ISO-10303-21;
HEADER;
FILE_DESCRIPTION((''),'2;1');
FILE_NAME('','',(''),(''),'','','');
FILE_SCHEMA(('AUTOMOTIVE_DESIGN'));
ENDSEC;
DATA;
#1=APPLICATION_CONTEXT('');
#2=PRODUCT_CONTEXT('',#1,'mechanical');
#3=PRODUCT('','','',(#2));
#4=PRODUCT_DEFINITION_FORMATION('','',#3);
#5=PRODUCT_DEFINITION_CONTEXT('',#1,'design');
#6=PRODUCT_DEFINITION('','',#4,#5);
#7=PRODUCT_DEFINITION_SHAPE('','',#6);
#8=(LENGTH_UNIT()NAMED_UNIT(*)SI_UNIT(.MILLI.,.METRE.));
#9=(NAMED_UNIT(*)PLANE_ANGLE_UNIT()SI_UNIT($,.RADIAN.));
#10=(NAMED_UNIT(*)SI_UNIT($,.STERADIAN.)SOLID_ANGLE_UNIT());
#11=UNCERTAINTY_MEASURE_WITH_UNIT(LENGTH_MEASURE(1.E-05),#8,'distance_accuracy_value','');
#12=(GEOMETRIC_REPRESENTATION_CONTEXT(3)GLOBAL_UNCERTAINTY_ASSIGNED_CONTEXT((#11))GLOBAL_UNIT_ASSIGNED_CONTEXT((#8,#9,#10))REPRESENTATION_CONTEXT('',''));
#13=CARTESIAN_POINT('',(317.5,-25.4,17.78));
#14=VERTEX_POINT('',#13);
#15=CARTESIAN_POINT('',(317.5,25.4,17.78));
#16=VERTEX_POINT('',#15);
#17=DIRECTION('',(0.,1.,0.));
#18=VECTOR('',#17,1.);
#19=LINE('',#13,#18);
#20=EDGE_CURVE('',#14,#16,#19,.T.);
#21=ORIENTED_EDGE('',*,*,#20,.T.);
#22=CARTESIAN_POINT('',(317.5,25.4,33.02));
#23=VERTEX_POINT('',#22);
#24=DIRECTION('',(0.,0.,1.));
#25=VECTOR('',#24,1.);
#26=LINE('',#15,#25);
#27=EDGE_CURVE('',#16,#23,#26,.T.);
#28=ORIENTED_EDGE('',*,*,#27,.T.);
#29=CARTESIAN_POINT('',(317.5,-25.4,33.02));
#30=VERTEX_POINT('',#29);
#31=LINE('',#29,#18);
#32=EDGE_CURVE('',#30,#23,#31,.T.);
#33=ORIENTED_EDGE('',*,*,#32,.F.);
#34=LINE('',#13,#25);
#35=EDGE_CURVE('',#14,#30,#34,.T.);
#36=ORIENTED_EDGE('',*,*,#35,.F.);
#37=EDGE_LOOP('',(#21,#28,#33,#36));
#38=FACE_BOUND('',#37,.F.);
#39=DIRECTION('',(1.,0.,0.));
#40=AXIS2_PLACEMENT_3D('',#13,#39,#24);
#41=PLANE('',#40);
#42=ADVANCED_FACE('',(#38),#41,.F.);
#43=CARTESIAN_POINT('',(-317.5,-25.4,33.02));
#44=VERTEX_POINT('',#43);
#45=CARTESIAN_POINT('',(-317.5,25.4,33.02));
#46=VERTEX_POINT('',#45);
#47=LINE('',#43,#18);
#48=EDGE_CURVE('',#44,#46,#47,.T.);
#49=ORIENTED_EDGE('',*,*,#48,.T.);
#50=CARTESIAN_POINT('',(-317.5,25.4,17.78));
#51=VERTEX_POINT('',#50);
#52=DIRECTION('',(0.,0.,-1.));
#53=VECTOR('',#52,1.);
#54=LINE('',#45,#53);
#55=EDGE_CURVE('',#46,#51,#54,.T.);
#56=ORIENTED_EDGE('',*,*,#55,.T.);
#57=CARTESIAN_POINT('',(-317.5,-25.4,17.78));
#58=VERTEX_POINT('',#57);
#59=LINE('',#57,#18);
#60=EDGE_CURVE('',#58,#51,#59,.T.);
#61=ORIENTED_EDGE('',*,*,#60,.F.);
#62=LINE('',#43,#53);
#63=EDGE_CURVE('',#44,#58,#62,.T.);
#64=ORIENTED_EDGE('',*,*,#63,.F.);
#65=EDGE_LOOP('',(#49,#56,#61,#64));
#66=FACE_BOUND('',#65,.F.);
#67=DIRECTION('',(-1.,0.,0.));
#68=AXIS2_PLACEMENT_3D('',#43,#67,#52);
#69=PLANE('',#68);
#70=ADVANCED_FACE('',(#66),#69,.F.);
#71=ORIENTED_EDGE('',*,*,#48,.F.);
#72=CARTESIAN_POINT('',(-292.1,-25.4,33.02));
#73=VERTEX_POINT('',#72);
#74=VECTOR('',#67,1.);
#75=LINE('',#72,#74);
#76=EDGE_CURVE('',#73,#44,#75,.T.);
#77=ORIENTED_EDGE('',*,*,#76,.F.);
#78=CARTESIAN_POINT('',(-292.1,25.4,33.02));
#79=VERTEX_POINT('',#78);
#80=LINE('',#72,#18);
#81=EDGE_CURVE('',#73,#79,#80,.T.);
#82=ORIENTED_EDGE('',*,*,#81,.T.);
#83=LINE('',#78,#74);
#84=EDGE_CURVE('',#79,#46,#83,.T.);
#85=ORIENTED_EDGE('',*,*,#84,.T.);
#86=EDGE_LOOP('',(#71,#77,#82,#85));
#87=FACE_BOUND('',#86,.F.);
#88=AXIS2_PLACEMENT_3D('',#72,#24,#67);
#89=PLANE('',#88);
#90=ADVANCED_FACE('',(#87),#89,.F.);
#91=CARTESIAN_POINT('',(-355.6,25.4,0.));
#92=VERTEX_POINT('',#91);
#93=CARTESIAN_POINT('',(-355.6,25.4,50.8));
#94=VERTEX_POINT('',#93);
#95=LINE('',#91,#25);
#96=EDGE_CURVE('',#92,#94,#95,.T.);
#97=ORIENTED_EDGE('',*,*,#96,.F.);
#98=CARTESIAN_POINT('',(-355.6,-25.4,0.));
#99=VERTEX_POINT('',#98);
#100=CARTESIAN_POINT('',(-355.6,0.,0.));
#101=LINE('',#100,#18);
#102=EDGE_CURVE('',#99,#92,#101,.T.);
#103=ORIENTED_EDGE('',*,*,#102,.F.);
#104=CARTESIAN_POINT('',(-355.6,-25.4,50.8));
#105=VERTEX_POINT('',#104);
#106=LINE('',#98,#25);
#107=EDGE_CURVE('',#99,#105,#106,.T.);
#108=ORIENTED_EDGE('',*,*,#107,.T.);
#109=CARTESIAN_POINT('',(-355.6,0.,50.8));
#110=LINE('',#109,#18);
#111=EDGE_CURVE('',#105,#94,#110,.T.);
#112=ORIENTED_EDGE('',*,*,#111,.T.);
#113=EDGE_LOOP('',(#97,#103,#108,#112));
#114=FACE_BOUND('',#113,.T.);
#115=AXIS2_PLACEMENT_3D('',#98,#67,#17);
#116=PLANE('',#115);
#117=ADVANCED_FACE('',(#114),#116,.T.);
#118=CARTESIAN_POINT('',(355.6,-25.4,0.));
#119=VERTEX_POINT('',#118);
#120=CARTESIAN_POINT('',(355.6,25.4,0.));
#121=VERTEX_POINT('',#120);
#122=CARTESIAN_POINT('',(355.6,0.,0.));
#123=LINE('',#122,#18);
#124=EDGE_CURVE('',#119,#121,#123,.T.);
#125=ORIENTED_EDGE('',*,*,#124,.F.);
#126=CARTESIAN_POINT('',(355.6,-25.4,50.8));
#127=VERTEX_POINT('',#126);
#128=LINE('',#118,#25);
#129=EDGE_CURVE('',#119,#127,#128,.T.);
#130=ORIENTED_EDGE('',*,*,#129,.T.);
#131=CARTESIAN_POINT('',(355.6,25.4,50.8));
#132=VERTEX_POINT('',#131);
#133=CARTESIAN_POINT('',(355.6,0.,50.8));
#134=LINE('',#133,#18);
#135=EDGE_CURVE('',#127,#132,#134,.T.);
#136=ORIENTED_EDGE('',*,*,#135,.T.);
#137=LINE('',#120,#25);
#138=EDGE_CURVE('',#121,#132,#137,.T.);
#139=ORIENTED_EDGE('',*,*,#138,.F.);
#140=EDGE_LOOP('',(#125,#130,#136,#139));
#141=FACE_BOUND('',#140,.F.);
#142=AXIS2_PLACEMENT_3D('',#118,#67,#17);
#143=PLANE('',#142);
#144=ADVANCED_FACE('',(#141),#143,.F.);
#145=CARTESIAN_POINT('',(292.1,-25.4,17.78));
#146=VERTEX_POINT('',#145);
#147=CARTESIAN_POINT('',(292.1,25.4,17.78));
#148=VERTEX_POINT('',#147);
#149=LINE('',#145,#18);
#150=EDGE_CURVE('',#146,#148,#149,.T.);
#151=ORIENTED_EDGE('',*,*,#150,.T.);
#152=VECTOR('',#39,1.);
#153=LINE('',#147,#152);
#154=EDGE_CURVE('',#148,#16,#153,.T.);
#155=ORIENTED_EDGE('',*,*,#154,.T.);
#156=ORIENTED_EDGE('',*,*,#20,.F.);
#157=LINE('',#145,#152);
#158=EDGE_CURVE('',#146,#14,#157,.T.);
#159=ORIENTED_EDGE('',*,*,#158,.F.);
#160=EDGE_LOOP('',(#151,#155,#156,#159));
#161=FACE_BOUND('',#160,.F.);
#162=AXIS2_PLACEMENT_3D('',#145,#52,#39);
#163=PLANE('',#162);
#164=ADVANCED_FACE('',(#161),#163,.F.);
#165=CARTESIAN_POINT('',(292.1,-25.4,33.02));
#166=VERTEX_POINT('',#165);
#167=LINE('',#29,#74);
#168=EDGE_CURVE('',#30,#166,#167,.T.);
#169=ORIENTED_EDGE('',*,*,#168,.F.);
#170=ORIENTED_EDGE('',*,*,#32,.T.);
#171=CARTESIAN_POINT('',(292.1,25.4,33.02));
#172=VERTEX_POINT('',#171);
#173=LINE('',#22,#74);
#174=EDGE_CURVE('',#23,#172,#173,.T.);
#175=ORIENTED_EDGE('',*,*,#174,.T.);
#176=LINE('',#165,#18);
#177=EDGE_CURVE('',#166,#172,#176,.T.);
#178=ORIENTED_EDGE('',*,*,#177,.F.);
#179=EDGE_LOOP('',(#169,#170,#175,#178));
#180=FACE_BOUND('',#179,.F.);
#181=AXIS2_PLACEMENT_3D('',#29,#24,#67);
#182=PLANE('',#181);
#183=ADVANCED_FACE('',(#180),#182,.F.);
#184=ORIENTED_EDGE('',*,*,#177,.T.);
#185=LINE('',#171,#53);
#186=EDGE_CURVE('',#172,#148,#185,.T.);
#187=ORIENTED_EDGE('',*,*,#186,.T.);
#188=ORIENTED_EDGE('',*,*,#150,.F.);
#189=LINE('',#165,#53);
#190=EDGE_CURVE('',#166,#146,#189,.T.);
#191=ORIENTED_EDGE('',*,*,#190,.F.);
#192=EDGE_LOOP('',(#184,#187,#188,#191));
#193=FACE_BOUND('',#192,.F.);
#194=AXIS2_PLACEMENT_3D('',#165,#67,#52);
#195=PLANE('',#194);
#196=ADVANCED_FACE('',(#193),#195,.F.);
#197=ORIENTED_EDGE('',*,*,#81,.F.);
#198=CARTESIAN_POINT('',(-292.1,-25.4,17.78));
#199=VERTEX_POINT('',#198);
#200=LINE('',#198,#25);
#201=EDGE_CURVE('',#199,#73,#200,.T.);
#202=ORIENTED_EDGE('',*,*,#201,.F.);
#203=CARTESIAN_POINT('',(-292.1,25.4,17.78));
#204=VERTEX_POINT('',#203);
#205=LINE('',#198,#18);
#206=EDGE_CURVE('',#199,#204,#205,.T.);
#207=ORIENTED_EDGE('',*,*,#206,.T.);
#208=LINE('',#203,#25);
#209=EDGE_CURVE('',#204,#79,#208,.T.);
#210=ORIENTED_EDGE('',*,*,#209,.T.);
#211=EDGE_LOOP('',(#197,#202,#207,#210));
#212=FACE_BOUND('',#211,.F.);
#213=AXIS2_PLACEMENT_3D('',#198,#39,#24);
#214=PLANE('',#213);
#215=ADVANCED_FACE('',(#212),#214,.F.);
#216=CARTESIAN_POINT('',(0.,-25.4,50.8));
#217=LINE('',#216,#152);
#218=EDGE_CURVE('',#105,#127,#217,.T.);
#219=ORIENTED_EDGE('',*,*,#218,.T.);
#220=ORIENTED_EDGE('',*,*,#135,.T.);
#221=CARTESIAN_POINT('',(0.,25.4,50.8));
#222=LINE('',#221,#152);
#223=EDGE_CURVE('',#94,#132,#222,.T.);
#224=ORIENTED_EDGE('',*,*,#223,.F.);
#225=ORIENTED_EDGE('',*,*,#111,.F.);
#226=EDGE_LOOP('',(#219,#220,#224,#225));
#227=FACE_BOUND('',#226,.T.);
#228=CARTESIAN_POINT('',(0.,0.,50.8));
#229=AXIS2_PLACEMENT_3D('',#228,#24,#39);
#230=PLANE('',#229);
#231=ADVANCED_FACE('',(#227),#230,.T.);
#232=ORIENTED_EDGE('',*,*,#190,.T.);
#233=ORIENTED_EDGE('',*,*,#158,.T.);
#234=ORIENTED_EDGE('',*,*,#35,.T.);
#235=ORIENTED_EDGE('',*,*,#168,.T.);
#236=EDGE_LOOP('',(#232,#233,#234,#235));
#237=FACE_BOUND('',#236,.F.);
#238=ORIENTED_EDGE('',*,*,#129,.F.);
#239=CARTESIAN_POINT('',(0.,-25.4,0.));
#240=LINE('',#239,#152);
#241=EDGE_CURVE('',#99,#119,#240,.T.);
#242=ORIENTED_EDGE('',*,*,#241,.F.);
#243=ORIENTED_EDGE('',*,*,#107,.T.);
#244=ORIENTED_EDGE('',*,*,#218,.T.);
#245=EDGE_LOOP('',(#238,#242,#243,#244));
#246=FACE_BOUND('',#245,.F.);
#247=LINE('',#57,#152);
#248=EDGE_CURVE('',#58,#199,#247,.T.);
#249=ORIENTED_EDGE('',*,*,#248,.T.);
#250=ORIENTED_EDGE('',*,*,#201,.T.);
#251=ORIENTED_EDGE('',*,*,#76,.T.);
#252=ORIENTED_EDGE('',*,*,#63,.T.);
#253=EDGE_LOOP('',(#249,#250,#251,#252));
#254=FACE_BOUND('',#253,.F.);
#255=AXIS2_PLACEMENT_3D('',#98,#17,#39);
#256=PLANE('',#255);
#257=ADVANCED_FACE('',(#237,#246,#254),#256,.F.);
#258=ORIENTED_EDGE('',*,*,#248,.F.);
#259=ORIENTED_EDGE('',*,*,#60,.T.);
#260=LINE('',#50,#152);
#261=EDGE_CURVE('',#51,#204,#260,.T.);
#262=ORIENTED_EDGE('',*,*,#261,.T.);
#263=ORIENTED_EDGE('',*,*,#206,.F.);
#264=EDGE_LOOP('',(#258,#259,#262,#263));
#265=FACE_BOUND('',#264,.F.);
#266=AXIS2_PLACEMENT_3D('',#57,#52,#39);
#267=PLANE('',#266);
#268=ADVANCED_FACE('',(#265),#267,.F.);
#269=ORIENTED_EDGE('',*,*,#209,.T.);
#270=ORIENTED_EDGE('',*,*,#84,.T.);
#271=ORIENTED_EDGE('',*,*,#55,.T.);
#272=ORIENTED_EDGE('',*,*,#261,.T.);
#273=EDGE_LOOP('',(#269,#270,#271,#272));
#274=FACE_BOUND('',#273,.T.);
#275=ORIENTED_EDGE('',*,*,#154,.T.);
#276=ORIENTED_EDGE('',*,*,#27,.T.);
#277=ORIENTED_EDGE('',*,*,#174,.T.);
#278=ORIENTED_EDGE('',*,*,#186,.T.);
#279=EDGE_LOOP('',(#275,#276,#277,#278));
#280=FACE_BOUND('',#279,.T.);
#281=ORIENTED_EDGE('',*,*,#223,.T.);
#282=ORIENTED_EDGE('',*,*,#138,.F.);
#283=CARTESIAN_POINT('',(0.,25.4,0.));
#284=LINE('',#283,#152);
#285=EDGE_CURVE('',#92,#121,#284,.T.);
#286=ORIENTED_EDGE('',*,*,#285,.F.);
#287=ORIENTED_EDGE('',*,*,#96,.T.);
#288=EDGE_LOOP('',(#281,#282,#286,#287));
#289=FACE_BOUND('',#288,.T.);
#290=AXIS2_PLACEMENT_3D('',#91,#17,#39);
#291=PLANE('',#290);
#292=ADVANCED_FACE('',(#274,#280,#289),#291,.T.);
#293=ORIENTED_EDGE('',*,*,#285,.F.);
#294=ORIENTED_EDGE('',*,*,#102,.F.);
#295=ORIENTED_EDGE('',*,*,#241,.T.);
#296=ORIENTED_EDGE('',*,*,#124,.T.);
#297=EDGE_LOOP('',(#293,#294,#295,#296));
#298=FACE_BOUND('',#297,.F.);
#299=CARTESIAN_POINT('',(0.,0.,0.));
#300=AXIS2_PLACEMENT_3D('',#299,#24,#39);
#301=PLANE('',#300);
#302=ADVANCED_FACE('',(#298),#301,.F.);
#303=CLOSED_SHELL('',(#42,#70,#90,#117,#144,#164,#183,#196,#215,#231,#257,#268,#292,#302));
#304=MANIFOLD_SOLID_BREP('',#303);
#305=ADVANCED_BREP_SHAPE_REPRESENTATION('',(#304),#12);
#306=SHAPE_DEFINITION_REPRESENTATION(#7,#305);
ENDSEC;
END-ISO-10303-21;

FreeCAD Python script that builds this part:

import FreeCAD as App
import Part
import Sketcher
from FreeCAD import Vector
Q = App.Units.Quantity

doc = App.newDocument("Part")
body = doc.addObject("PartDesign::Body", "Body")

# Sketch on XY plane
sketch1 = body.newObject("Sketcher::SketchObject", "Sketch")
sketch1.AttachmentSupport = (doc.getObject("XY_Plane"), [""])
sketch1.MapMode = "FlatFace"
sketch1.addGeometry([
    Part.LineSegment(Vector(-356, 25, 0), Vector(-356, -25, 0)),
    Part.LineSegment(Vector(-356, -25, 0), Vector(356, -25, 0)),
    Part.LineSegment(Vector(356, -25, 0), Vector(356, 25, 0)),
    Part.LineSegment(Vector(356, 25, 0), Vector(-356, 25, 0)),
], False)
sketch1.addConstraint([
    Sketcher.Constraint("Coincident", 0, 2, 1, 1),
    Sketcher.Constraint("Coincident", 1, 2, 2, 1),
    Sketcher.Constraint("Coincident", 2, 2, 3, 1),
    Sketcher.Constraint("Coincident", 3, 2, 0, 1),
    Sketcher.Constraint("Vertical", 0),
    Sketcher.Constraint("Horizontal", 1),
    Sketcher.Constraint("Vertical", 2),
    Sketcher.Constraint("Horizontal", 3),
    Sketcher.Constraint("Symmetric", 0, 2, 2, 2, -1, 1),
    Sketcher.Constraint("DistanceX", 1, 1, 1, 2, Q("28 in")),
    Sketcher.Constraint("DistanceY", 0, 2, 0, 1, Q("2 in")),
])
pad1 = body.newObject("PartDesign::Pad", "Pad")
pad1.Profile = sketch1
pad1.Length = Q("2 in")

# Sketch on XZ plane
sketch2 = body.newObject("Sketcher::SketchObject", "Sketch001")
sketch2.AttachmentSupport = (doc.getObject("XZ_Plane"), [""])
sketch2.MapMode = "FlatFace"
sketch2.AttachmentOffset = App.Placement(Vector(0, 0, 1 * 25.4), App.Rotation())
sketch2.addGeometry([
    Part.LineSegment(Vector(-292, 33, 0), Vector(-318, 33, 0)),
    Part.LineSegment(Vector(-318, 33, 0), Vector(-318, 18, 0)),
    Part.LineSegment(Vector(-318, 18, 0), Vector(-292, 18, 0)),
    Part.LineSegment(Vector(-292, 18, 0), Vector(-292, 33, 0)),
], False)
sketch2.addConstraint([
    Sketcher.Constraint("Coincident", 0, 2, 1, 1),
    Sketcher.Constraint("Coincident", 1, 2, 2, 1),
    Sketcher.Constraint("Coincident", 2, 2, 3, 1),
    Sketcher.Constraint("Coincident", 3, 2, 0, 1),
    Sketcher.Constraint("Horizontal", 0),
    Sketcher.Constraint("Vertical", 1),
    Sketcher.Constraint("Horizontal", 2),
    Sketcher.Constraint("Vertical", 3),
    Sketcher.Constraint("DistanceX", 0, 2, 0, 1, Q("1 in")),
    Sketcher.Constraint("DistanceY", 1, 2, 1, 1, Q("0.6 in")),
    Sketcher.Constraint("DistanceX", 0, 2, -1, 1, Q("12.5 in")),
    Sketcher.Constraint("DistanceY", -1, 1, 0, 2, Q("1.3 in")),
])
pocket1 = body.newObject("PartDesign::Pocket", "Pocket")
pocket1.Profile = sketch2
pocket1.Length = Q("2 in")

# Sketch on XZ plane
sketch3 = body.newObject("Sketcher::SketchObject", "Sketch002")
sketch3.AttachmentSupport = (doc.getObject("XZ_Plane"), [""])
sketch3.MapMode = "FlatFace"
sketch3.AttachmentOffset = App.Placement(Vector(0, 0, 1 * 25.4), App.Rotation())
sketch3.addGeometry([
    Part.LineSegment(Vector(318, 33, 0), Vector(292, 33, 0)),
    Part.LineSegment(Vector(292, 33, 0), Vector(292, 18, 0)),
    Part.LineSegment(Vector(292, 18, 0), Vector(318, 18, 0)),
    Part.LineSegment(Vector(318, 18, 0), Vector(318, 33, 0)),
], False)
sketch3.addConstraint([
    Sketcher.Constraint("Coincident", 0, 2, 1, 1),
    Sketcher.Constraint("Coincident", 1, 2, 2, 1),
    Sketcher.Constraint("Coincident", 2, 2, 3, 1),
    Sketcher.Constraint("Coincident", 3, 2, 0, 1),
    Sketcher.Constraint("Horizontal", 0),
    Sketcher.Constraint("Vertical", 1),
    Sketcher.Constraint("Horizontal", 2),
    Sketcher.Constraint("Vertical", 3),
    Sketcher.Constraint("DistanceX", 0, 2, 0, 1, Q("1 in")),
    Sketcher.Constraint("DistanceY", 1, 2, 1, 1, Q("0.6 in")),
    Sketcher.Constraint("DistanceX", -1, 1, 0, 2, Q("11.5 in")),
    Sketcher.Constraint("DistanceY", -1, 1, 0, 2, Q("1.3 in")),
])
pocket2 = body.newObject("PartDesign::Pocket", "Pocket001")
pocket2.Profile = sketch3
pocket2.Length = Q("2 in")

doc.recompute()
